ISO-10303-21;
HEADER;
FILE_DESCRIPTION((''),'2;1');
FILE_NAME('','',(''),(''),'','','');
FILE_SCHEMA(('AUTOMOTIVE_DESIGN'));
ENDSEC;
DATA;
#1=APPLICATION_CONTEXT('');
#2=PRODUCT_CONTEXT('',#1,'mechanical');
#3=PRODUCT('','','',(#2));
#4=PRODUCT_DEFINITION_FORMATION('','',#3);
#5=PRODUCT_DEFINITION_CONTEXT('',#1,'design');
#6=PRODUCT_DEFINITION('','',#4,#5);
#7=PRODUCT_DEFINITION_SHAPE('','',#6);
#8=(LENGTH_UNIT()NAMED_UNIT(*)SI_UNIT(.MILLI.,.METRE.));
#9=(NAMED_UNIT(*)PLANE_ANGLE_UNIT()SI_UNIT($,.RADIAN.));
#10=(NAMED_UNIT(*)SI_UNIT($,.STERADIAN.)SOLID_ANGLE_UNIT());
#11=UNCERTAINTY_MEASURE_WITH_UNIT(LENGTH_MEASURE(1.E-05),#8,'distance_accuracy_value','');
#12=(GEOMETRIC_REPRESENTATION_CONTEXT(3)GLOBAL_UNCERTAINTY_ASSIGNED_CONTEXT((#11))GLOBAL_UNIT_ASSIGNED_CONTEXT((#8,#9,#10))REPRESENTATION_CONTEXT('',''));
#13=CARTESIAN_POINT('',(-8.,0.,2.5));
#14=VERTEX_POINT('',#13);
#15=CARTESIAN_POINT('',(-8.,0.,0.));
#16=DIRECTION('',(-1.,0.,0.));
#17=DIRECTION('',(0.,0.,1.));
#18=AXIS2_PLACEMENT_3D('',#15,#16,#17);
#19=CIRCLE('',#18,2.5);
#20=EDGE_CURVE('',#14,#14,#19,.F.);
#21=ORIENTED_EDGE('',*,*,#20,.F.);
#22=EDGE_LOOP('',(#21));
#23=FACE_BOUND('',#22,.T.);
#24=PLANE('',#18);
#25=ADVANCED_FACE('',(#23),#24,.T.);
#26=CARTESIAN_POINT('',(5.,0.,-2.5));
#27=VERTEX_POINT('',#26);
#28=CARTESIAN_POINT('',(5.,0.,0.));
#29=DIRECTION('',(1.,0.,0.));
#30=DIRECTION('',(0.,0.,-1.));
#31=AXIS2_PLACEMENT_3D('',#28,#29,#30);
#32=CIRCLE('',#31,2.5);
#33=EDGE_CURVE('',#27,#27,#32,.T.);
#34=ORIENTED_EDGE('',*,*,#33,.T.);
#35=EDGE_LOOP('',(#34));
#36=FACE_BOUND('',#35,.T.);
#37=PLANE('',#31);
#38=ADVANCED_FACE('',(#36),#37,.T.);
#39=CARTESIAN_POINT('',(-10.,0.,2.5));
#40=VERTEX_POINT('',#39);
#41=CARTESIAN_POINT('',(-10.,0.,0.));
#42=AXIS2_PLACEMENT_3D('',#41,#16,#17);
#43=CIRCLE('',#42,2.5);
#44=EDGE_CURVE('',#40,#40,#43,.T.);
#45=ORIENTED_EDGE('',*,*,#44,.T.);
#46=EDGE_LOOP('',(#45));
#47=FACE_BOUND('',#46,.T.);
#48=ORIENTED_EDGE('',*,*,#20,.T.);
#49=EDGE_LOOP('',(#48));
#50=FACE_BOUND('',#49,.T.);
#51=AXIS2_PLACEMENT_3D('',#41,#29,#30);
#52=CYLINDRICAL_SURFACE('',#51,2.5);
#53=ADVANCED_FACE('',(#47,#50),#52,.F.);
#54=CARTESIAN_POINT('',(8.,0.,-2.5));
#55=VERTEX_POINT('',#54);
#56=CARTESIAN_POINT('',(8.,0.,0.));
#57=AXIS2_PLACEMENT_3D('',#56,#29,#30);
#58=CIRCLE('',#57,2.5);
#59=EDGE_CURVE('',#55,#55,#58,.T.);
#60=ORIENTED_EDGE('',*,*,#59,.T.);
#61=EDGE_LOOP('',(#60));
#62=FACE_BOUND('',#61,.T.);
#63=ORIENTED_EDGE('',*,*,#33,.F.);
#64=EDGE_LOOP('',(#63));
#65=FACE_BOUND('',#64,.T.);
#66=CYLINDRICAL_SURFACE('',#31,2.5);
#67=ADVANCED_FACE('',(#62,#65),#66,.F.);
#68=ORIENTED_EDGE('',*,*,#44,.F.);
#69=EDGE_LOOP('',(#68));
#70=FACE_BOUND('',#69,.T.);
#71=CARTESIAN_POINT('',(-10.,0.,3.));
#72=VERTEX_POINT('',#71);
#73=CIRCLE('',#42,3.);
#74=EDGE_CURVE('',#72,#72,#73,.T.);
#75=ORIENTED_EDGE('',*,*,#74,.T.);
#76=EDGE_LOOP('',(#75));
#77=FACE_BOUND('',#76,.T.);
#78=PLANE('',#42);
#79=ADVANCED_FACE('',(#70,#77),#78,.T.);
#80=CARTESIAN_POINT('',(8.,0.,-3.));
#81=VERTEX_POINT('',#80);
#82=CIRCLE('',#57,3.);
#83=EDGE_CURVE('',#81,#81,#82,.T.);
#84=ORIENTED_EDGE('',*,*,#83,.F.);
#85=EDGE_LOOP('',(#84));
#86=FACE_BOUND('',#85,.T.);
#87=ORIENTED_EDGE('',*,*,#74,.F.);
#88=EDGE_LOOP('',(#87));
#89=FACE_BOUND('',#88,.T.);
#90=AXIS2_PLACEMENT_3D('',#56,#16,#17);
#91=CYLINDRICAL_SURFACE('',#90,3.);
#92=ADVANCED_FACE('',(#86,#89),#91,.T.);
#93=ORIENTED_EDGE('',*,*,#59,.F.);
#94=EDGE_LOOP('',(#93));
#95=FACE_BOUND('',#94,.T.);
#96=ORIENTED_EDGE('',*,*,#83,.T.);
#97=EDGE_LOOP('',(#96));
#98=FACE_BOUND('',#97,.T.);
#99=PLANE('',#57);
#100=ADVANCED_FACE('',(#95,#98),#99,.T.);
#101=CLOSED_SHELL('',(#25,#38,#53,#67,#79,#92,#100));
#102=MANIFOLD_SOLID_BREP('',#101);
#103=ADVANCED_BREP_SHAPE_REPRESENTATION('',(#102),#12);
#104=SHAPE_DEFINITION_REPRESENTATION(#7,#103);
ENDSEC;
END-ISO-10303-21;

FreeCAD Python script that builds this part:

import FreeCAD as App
import Part
import Sketcher
from FreeCAD import Vector

doc = App.newDocument("Part")
body = doc.addObject("PartDesign::Body", "Body")

sketch1 = body.newObject("Sketcher::SketchObject", "Sketch")
sketch1.AttachmentSupport = (doc.getObject("YZ_Plane"), [""])
sketch1.MapMode = "FlatFace"
sketch1.addGeometry(Part.Circle(Vector(0, 0, 0), Vector(0, 0, 1), 3), False)
sketch1.addConstraint([
    Sketcher.Constraint("Coincident", 0, 3, -1, 1),
    Sketcher.Constraint("Diameter", 0, 6.0),
])
pad1 = body.newObject("PartDesign::Pad", "Pad")
pad1.Profile = sketch1
pad1.Length = 8

sketch2 = body.newObject("Sketcher::SketchObject", "Sketch001")
sketch2.AttachmentSupport = (doc.getObject("YZ_Plane"), [""])
sketch2.MapMode = "FlatFace"
sketch2.AttachmentOffset = App.Placement(Vector(0, 0, 8), App.Rotation())
sketch2.addGeometry(Part.Circle(Vector(0, 0, 0), Vector(0, 0, 1), 2.5), False)
sketch2.addConstraint([
    Sketcher.Constraint("Coincident", 0, 3, -1, 1),
    Sketcher.Constraint("Diameter", 0, 5.0),
])
pocket1 = body.newObject("PartDesign::Pocket", "Pocket")
pocket1.Profile = sketch2
pocket1.Length = 3

sketch3 = body.newObject("Sketcher::SketchObject", "Sketch002")
sketch3.AttachmentSupport = (doc.getObject("YZ_Plane"), [""])
sketch3.MapMode = "FlatFace"
sketch3.AttachmentOffset = App.Placement(Vector(0, 0, 2), App.Rotation())
sketch3.addGeometry(Part.Circle(Vector(0, 0, 0), Vector(0, 0, 1), 2.5), False)
sketch3.addConstraint([
    Sketcher.Constraint("Coincident", 0, 3, -1, 1),
    Sketcher.Constraint("Diameter", 0, 5.0),
])
pocket2 = body.newObject("PartDesign::Pocket", "Pocket001")
pocket2.Profile = sketch3
pocket2.Length = 2

sketch4 = body.newObject("Sketcher::SketchObject", "Sketch003")
sketch4.AttachmentSupport = (doc.getObject("YZ_Plane"), [""])
sketch4.MapMode = "FlatFace"
sketch4.AttachmentOffset = App.Placement(Vector(0, 0, 2), App.Rotation())
sketch4.addGeometry(Part.Circle(Vector(0, 0, 0), Vector(0, 0, 1), 2.5), False)
sketch4.addConstraint([
    Sketcher.Constraint("Coincident", 0, 3, -1, 1),
    Sketcher.Constraint("Diameter", 0, 5.0),
])
pad2 = body.newObject("PartDesign::Pad", "Pad001")
pad2.Profile = sketch4
pad2.Length = 10
pad2.Reversed = True

sketch5 = body.newObject("Sketcher::SketchObject", "Sketch004")
sketch5.AttachmentSupport = (doc.getObject("YZ_Plane"), [""])
sketch5.MapMode = "FlatFace"
sketch5.addGeometry([
    Part.Circle(Vector(0, 0, 0), Vector(0, 0, 1), 3),
    Part.Circle(Vector(0, 0, 0), Vector(0, 0, 1), 2.5),
], False)
sketch5.addConstraint([
    Sketcher.Constraint("Coincident", 0, 3, -1, 1),
    Sketcher.Constraint("Coincident", 1, 3, -1, 1),
    Sketcher.Constraint("Diameter", 0, 6.0),
    Sketcher.Constraint("Diameter", 1, 5.0),
])
pad3 = body.newObject("PartDesign::Pad", "Pad002")
pad3.Profile = sketch5
pad3.Length = 10
pad3.Reversed = True

doc.recompute()
